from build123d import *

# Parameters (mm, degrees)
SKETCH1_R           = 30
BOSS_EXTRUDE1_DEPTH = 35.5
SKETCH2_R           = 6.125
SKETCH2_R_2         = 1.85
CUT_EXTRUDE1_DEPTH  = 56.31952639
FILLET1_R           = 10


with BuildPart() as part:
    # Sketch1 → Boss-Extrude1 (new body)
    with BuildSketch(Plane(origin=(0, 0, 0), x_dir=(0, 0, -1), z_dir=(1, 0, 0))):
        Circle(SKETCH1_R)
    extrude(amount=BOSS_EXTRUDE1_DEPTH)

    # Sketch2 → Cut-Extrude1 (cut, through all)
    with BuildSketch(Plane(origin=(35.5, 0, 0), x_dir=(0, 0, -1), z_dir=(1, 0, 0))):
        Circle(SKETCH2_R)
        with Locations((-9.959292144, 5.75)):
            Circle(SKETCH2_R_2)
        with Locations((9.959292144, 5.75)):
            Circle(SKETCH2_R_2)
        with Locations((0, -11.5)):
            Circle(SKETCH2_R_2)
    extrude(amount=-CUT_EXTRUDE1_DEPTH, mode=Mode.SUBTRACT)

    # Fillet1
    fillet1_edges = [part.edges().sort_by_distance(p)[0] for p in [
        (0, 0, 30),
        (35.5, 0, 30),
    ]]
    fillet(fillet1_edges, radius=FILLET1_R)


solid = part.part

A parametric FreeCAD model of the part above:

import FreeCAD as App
import Part
import Sketcher

V = App.Vector


def edges_at(feature, points):
    """Names of the edges that pass closest to the given points."""
    edges = feature.Shape.Edges
    near = lambda p: min(range(len(edges)), key=lambda i: edges[i].distToShape(Part.Vertex(*p))[0])
    return sorted({f"Edge{near(p) + 1}" for p in points})

doc = App.newDocument("Part")
body = doc.addObject("PartDesign::Body", "Body")

sketch1 = doc.addObject("Sketcher::SketchObject", "Sketch")
body.addObject(sketch1)
sketch1.AttachmentSupport = (doc.YZ_Plane, [""])
sketch1.MapMode = "FlatFace"
sketch1.addGeometry(Part.Circle(V(0, 0, 0), V(0, 0, 1), 30), False)
sketch1.addConstraint(Sketcher.Constraint("Coincident", 0, 3, -1, 1))
sketch1.addConstraint(Sketcher.Constraint("Diameter", 0, 60.0))
pad1 = doc.addObject("PartDesign::Pad", "Pad")
body.addObject(pad1)
pad1.Profile = sketch1
pad1.Length = 35.5

sketch2 = doc.addObject("Sketcher::SketchObject", "Sketch001")
body.addObject(sketch2)
sketch2.AttachmentSupport = (doc.YZ_Plane, [""])
sketch2.MapMode = "FlatFace"
sketch2.AttachmentOffset = App.Placement(V(0, 0, 35.5), App.Rotation())
sketch2.addGeometry(Part.Circle(V(0, 0, 0), V(0, 0, 1), 6.1), False)
sketch2.addGeometry(Part.Circle(V(5.8, 10, 0), V(0, 0, 1), 1.9), False)
sketch2.addGeometry(Part.Circle(V(5.8, -10, 0), V(0, 0, 1), 1.9), False)
sketch2.addGeometry(Part.Circle(V(-11.5, 0, 0), V(0, 0, 1), 1.9), False)
sketch2.addConstraint(Sketcher.Constraint("Coincident", 0, 3, -1, 1))
sketch2.addConstraint(Sketcher.Constraint("Equal", 1, 2))
sketch2.addConstraint(Sketcher.Constraint("Equal", 2, 3))
sketch2.addConstraint(Sketcher.Constraint("Symmetric", 1, 3, 2, 3, -1))
sketch2.addConstraint(Sketcher.Constraint("PointOnObject", 3, 3, -1))
sketch2.addConstraint(Sketcher.Constraint("Diameter", 1, 3.7))
sketch2.addConstraint(Sketcher.Constraint("Diameter", 0, 12.25))
sketch2.addConstraint(Sketcher.Constraint("DistanceX", 3, 3, -1, 1, 11.5))
sketch2.addConstraint(Sketcher.Constraint("DistanceX", -1, 1, 1, 3, 5.75))
sketch2.addConstraint(Sketcher.Constraint("DistanceY", -1, 1, 1, 3, 9.959292))
pocket1 = doc.addObject("PartDesign::Pocket", "Pocket")
body.addObject(pocket1)
pocket1.Profile = sketch2
pocket1.Type = "ThroughAll"
doc.recompute()

fillet = doc.addObject("PartDesign::Fillet", "Fillet")
body.addObject(fillet)
fillet.Base = (pocket1, edges_at(pocket1, [(0, 0, 30), (35.5, 0, 30)]))
fillet.Radius = 10

doc.recompute()
